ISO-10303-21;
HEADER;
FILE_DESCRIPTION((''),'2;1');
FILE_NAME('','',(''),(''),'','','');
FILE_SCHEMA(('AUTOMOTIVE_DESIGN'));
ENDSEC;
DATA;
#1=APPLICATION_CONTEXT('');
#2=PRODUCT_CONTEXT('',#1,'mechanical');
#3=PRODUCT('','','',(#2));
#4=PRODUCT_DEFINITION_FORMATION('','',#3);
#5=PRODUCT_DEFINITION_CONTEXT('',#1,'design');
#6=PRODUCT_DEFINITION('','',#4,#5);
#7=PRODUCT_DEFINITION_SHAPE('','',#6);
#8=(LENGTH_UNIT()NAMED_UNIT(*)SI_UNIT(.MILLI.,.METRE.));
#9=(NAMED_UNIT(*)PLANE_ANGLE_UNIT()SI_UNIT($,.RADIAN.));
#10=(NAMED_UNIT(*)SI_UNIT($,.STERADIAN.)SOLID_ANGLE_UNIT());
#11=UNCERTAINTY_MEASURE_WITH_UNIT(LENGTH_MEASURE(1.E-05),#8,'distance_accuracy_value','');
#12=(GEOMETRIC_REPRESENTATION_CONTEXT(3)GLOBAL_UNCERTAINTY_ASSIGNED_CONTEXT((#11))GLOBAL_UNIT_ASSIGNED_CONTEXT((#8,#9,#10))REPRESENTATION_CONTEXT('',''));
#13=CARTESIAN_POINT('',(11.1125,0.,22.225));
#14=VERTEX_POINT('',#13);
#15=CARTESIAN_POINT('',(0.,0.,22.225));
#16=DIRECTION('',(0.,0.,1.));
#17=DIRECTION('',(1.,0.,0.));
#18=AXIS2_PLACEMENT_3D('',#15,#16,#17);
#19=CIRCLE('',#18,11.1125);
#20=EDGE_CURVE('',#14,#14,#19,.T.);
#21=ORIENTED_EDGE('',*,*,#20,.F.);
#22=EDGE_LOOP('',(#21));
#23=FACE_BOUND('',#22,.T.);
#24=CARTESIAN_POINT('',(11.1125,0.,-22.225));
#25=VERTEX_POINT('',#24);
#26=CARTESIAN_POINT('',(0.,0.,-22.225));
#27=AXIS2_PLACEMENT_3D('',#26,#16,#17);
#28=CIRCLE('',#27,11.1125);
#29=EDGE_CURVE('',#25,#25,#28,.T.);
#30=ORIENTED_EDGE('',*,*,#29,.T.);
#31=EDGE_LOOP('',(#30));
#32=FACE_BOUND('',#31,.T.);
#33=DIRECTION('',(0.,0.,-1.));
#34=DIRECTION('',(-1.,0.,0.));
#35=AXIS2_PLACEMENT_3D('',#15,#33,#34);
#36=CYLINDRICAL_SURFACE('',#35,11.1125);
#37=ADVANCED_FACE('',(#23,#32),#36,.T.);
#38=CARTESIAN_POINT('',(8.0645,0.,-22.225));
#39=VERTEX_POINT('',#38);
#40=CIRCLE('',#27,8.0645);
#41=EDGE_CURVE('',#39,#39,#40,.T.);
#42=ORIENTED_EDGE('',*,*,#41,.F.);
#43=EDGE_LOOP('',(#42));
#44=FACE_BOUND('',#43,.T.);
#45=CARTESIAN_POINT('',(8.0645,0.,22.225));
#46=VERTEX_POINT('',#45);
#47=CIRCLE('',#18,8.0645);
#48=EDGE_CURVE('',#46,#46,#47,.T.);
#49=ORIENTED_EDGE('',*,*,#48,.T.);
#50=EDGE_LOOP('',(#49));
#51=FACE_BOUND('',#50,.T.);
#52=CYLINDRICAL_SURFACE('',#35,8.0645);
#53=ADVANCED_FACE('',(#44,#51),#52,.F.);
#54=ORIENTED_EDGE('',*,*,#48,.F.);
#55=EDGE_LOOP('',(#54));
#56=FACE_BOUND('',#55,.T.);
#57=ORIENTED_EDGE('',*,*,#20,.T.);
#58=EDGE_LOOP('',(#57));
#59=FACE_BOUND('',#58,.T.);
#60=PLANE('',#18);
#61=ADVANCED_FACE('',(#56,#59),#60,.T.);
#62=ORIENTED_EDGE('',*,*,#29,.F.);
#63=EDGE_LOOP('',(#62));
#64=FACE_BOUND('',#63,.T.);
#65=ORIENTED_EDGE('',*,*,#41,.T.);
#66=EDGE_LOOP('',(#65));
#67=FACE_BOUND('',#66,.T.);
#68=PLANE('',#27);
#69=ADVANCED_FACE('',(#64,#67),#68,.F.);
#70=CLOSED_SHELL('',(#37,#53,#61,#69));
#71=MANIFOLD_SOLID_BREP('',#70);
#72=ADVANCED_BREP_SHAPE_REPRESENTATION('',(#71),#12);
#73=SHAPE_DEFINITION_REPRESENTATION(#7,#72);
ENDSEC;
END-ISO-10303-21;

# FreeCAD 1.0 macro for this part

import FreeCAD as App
import Part
import Sketcher
Q = App.Units.Quantity

doc = App.newDocument("Part")
body = doc.addObject("PartDesign::Body", "Body")

# Sketch on XY plane
sketch1 = body.newObject("Sketcher::SketchObject", "Sketch")
sketch1.AttachmentSupport = (doc.getObject("XY_Plane"), [""])
sketch1.MapMode = "FlatFace"
sketch1.addGeometry(Part.Circle(App.Vector(0, 0, 0), App.Vector(0, 0, 1), 11), False)
sketch1.addGeometry(Part.Circle(App.Vector(0, 0, 0), App.Vector(0, 0, 1), 8), False)
sketch1.addConstraint(Sketcher.Constraint("Coincident", 0, 3, -1, 1))
sketch1.addConstraint(Sketcher.Constraint("Coincident", 1, 3, -1, 1))
sketch1.addConstraint(Sketcher.Constraint("Diameter", 0, Q("0.875 in")))
sketch1.addConstraint(Sketcher.Constraint("Diameter", 1, Q("0.635 in")))
pad1 = body.newObject("PartDesign::Pad", "Pad")
pad1.Profile = sketch1
pad1.Length = Q("1.75 in")
pad1.Midplane = True

doc.recompute()
